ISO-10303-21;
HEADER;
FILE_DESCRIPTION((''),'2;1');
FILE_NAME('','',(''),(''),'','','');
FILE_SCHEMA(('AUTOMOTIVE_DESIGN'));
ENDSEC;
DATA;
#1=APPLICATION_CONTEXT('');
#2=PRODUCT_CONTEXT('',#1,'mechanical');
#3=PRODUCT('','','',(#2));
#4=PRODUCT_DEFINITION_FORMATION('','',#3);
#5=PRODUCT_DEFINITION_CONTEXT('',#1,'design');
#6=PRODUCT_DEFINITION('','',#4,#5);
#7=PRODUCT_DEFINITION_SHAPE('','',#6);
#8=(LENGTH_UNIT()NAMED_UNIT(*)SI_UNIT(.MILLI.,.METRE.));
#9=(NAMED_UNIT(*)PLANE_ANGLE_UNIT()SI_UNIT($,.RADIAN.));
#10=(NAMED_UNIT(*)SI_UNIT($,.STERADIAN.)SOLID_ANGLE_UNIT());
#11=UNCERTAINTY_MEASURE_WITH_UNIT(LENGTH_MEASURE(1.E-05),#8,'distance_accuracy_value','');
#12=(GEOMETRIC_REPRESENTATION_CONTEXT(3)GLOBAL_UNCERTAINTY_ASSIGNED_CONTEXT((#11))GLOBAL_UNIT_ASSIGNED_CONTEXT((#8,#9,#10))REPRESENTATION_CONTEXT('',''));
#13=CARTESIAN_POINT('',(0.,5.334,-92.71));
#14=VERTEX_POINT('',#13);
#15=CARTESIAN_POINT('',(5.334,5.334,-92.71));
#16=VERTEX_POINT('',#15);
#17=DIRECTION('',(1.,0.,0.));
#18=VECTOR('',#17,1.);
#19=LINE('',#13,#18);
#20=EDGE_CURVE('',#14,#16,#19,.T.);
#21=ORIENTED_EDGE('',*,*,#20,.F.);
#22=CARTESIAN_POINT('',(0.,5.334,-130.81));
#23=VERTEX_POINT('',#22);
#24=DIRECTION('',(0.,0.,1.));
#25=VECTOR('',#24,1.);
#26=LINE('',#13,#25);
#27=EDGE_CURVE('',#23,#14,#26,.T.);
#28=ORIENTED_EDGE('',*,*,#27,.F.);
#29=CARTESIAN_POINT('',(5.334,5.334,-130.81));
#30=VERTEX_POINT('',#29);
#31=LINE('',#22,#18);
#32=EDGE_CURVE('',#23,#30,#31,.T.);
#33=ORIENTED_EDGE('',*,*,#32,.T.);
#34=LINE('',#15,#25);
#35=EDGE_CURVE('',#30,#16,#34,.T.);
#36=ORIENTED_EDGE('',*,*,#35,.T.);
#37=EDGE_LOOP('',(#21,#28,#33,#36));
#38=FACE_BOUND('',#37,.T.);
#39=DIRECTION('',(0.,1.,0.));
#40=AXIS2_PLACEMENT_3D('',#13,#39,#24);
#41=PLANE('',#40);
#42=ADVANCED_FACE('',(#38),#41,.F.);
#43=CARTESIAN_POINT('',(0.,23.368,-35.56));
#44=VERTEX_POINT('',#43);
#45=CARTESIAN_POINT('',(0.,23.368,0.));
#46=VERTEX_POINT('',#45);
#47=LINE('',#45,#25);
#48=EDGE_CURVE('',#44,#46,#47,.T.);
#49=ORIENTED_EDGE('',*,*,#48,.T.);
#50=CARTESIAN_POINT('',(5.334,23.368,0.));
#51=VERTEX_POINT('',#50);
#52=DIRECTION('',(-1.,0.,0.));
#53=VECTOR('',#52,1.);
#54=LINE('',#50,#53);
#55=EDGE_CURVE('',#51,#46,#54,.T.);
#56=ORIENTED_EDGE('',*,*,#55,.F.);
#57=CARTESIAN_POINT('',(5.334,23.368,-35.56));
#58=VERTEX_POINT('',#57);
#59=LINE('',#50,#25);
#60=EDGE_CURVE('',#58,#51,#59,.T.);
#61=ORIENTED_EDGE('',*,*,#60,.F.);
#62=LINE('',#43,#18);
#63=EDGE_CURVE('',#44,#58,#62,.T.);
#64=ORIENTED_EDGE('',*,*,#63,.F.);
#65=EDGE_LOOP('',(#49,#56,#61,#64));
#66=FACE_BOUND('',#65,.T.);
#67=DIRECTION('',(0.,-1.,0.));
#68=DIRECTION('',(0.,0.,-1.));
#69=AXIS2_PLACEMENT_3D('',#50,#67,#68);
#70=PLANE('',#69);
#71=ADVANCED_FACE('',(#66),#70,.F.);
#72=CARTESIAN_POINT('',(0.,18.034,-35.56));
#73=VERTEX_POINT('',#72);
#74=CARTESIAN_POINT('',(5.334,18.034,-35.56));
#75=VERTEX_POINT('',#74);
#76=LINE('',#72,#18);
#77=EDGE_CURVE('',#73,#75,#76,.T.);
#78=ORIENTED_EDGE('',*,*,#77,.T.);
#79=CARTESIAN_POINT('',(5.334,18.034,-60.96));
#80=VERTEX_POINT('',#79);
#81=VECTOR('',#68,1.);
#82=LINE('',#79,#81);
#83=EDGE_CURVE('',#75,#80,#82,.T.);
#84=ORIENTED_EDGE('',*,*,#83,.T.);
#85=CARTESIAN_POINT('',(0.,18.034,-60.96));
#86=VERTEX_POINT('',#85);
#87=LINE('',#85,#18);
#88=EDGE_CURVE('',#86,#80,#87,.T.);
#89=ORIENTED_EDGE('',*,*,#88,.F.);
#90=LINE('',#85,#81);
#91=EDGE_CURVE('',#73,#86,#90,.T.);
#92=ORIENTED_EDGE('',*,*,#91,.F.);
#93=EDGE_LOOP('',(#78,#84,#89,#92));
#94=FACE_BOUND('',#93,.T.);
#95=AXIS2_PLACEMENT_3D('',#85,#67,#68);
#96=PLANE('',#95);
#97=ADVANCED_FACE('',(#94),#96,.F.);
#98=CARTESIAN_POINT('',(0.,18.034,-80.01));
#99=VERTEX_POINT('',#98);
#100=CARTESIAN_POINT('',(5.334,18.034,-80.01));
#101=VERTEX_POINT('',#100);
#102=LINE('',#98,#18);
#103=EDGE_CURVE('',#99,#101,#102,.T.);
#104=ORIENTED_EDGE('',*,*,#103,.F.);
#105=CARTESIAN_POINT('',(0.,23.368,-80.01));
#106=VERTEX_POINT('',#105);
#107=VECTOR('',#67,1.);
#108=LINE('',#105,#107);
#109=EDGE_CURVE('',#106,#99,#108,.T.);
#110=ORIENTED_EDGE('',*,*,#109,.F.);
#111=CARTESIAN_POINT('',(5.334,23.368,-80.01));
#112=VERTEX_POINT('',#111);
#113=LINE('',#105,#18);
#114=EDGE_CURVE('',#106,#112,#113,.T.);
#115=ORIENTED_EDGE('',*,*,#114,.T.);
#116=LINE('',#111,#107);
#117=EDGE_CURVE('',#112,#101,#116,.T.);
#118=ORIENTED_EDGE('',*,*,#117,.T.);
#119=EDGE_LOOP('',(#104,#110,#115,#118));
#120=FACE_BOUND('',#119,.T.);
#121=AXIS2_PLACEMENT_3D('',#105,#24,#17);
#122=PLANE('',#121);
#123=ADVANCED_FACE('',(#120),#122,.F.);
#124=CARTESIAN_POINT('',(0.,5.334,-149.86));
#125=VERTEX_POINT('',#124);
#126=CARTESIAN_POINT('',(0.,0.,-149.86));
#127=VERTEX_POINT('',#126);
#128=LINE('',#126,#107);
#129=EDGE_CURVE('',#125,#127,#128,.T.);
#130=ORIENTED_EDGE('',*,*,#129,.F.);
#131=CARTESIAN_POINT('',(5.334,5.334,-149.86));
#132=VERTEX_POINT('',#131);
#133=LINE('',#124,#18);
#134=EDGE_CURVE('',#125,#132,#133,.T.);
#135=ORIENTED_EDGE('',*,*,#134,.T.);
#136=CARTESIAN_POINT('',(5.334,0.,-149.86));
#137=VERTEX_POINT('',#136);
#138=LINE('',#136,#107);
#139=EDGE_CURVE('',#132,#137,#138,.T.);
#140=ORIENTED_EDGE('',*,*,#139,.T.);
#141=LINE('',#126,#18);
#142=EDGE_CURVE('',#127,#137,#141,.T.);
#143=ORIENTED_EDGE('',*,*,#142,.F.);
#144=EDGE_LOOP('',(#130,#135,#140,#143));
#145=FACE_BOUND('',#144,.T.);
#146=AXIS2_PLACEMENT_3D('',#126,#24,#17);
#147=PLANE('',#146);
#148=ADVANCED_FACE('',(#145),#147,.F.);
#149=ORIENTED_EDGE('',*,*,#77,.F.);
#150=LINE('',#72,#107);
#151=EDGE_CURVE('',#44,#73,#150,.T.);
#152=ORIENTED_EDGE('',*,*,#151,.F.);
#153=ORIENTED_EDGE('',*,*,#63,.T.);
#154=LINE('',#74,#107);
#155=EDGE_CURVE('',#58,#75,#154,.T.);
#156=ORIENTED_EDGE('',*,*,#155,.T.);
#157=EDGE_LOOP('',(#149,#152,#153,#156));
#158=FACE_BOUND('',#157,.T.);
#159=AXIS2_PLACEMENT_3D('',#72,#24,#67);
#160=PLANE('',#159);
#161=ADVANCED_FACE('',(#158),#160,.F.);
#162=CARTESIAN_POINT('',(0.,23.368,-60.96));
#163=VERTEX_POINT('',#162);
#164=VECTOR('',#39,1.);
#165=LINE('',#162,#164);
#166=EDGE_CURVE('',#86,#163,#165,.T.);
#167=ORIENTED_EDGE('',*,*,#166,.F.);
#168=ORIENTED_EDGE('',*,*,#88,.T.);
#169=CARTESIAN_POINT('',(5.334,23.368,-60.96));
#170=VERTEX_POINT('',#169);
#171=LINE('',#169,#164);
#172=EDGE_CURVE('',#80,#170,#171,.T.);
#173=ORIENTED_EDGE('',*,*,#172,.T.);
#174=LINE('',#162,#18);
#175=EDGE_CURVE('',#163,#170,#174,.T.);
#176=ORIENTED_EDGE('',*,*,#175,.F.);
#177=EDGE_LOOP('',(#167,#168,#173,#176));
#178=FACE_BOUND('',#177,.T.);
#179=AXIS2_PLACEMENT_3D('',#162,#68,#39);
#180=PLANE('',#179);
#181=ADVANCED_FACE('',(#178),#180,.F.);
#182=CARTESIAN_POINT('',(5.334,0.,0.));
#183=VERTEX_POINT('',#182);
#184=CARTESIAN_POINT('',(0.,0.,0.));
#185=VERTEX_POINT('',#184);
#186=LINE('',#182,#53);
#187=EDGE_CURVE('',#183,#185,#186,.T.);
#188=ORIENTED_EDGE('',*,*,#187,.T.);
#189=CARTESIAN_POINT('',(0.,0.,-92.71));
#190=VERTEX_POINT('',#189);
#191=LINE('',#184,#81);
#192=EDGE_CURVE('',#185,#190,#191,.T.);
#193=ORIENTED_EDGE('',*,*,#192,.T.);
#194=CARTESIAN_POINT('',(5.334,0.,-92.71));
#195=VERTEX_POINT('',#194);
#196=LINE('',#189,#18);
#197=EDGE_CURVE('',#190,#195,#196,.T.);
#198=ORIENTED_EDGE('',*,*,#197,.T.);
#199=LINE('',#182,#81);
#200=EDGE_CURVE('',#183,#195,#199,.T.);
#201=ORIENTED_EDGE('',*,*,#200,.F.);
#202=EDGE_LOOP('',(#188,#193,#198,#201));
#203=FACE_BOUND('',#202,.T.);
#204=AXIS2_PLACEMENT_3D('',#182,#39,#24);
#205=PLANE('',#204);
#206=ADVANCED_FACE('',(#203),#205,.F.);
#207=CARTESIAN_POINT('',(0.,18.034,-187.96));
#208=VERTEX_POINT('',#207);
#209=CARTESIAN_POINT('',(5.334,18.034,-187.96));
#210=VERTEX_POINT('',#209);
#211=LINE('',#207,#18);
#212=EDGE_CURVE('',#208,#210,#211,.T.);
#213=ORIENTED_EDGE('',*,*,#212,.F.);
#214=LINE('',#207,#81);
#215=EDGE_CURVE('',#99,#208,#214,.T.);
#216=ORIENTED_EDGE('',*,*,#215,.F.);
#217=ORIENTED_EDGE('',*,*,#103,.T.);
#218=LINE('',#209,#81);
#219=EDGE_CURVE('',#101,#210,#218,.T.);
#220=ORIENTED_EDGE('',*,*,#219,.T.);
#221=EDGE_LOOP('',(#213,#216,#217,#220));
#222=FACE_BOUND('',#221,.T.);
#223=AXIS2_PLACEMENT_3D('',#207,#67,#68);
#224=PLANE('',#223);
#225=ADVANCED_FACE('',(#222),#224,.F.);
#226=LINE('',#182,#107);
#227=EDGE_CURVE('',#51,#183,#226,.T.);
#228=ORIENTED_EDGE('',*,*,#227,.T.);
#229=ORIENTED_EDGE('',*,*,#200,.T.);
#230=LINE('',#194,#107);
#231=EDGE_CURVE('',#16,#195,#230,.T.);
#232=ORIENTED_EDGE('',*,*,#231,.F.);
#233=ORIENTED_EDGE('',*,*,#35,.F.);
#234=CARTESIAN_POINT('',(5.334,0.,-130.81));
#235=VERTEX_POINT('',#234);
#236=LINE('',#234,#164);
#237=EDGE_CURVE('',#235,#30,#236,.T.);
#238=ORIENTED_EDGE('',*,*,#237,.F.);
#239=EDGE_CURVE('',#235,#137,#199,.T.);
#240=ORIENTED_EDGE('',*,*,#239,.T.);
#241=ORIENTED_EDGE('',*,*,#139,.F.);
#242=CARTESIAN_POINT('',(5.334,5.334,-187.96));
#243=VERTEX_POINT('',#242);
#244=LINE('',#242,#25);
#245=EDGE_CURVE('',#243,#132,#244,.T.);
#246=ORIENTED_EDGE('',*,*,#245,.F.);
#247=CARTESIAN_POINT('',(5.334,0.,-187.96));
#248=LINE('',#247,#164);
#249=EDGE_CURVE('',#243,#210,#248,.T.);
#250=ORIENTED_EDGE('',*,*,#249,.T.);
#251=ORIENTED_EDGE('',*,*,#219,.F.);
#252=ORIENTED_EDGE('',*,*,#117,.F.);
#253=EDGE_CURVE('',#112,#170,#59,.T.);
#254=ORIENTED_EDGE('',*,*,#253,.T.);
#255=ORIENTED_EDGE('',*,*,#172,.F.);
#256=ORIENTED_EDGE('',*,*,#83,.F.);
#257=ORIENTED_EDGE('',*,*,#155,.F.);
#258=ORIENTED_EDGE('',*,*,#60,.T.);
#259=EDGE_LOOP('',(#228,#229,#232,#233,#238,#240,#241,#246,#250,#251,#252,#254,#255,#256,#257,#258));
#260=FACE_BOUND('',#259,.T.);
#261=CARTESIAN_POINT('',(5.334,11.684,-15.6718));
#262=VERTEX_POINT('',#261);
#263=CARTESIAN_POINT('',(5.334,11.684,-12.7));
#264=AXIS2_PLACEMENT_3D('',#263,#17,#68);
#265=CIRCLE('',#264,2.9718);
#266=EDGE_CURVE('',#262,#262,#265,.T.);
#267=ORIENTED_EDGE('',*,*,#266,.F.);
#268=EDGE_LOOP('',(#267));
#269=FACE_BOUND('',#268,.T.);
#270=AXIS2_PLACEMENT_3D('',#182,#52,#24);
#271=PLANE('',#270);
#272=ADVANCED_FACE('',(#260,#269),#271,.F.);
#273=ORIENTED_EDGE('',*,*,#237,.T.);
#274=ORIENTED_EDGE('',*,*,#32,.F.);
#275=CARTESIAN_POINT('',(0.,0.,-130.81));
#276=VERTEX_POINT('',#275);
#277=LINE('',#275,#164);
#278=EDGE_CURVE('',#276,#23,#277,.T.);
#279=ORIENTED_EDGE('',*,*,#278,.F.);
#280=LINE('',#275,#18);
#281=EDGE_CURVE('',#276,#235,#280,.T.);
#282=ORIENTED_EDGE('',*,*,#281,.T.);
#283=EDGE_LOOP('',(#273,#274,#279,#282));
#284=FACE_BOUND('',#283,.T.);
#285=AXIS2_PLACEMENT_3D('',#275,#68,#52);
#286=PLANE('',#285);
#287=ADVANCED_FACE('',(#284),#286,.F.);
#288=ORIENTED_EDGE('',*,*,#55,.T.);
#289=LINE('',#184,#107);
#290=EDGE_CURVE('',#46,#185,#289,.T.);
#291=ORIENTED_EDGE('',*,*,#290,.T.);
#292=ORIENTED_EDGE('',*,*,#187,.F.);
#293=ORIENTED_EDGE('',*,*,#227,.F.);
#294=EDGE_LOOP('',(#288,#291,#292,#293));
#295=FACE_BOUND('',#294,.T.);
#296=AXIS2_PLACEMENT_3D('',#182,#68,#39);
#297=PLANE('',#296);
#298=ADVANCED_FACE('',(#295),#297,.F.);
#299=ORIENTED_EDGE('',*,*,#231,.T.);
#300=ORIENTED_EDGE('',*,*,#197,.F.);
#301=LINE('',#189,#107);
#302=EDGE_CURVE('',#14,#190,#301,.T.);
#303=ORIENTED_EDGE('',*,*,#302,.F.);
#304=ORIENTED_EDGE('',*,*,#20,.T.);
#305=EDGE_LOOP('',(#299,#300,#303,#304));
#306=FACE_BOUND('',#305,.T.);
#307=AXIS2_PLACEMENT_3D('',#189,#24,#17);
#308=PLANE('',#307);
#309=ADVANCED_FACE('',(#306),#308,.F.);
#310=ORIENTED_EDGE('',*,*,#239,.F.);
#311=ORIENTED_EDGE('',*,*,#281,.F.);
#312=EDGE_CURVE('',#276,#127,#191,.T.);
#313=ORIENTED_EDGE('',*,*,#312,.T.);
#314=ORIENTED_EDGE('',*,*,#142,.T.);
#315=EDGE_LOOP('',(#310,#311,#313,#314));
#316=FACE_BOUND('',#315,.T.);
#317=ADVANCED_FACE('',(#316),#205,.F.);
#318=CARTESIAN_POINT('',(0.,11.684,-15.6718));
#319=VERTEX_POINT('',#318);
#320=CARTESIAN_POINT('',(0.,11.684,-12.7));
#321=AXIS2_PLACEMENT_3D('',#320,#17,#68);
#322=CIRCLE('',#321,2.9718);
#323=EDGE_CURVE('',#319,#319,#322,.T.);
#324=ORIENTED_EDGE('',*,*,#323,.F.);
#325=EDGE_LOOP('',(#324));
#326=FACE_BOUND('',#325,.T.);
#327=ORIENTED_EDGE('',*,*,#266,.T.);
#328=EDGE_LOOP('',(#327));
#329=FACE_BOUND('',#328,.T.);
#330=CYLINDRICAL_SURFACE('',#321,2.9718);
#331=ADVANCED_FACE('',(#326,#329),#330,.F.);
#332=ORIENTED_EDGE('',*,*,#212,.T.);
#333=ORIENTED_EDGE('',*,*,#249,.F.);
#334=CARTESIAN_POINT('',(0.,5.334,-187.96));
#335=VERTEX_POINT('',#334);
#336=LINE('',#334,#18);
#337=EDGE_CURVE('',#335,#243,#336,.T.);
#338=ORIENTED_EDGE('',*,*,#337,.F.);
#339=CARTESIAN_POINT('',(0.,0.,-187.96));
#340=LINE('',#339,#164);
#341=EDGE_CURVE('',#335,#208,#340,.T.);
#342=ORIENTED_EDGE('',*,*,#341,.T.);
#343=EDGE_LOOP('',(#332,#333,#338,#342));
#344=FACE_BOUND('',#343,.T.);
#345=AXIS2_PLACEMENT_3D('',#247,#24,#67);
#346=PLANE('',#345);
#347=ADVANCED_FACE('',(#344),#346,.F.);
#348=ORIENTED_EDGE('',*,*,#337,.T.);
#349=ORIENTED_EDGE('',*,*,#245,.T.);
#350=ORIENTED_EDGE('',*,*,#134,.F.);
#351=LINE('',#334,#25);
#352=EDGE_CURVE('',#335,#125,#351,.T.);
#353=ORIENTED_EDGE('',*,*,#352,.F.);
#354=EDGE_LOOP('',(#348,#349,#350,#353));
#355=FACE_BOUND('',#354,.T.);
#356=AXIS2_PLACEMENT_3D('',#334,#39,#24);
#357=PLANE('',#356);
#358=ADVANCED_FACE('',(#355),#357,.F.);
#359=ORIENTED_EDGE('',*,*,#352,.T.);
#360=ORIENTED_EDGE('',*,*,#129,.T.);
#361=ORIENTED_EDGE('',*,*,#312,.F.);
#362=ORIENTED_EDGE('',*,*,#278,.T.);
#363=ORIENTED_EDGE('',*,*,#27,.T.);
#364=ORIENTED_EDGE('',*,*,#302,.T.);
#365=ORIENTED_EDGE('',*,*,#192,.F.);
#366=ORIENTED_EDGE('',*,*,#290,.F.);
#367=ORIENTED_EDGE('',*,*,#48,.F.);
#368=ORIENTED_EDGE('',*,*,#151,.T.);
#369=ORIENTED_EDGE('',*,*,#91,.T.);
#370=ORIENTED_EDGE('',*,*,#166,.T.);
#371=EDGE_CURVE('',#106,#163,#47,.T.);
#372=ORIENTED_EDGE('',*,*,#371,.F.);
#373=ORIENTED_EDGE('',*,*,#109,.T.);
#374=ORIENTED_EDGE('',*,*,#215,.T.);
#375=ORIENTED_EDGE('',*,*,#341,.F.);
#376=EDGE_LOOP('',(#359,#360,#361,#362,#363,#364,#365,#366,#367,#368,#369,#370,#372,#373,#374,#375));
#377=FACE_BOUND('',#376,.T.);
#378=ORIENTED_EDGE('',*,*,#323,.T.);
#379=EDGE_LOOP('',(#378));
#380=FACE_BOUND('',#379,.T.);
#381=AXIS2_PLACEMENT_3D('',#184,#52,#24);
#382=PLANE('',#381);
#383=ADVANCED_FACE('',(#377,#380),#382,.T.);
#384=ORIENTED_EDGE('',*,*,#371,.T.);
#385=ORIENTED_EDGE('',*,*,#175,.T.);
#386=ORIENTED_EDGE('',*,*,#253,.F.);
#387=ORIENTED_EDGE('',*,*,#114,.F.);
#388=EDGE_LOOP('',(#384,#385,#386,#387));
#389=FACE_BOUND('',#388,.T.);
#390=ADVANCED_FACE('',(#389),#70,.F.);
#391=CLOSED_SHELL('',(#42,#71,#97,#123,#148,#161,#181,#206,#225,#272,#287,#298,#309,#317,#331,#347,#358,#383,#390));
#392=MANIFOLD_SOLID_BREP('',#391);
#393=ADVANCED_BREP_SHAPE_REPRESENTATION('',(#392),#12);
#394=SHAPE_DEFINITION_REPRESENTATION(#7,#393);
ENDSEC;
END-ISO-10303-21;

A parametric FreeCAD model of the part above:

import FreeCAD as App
import Part
import Sketcher
from FreeCAD import Vector
Q = App.Units.Quantity

doc = App.newDocument("Part")
params = doc.addObject("Spreadsheet::Sheet", "Params")
for row, (alias, value) in enumerate([
    ("sketch1_height", "7.4 in"),
    ("sketch1_width", "0.92 in"),
    ("pad1_length", "0.21 in"),
    ("sketch2_height", "1 in"),
    ("sketch2_height2", "1.5 in"),
    ("sketch2_width", "0.21 in"),
    ("sketch2_height3", "4.25 in"),
    ("sketch3_diameter", "0.234 in"),
], start=1):
    params.set(f"A{row}", alias)
    params.set(f"B{row}", "=" + value)
    params.setAlias(f"B{row}", alias)

body = doc.addObject("PartDesign::Body", "Body")

# Sketch on YZ plane
sketch1 = body.newObject("Sketcher::SketchObject", "Sketch")
sketch1.AttachmentSupport = (doc.getObject("YZ_Plane"), [""])
sketch1.MapMode = "FlatFace"
sketch1.addGeometry(Part.LineSegment(Vector(23, 0, 0), Vector(0, 0, 0)), False)
sketch1.addGeometry(Part.LineSegment(Vector(0, 0, 0), Vector(0, -188, 0)), False)
sketch1.addGeometry(Part.LineSegment(Vector(0, -188, 0), Vector(23, -188, 0)), False)
sketch1.addGeometry(Part.LineSegment(Vector(23, -188, 0), Vector(23, 0, 0)), False)
sketch1.addConstraint(Sketcher.Constraint("Coincident", 0, 2, 1, 1))
sketch1.addConstraint(Sketcher.Constraint("Coincident", 1, 2, 2, 1))
sketch1.addConstraint(Sketcher.Constraint("Coincident", 2, 2, 3, 1))
sketch1.addConstraint(Sketcher.Constraint("Coincident", 3, 2, 0, 1))
sketch1.addConstraint(Sketcher.Constraint("Horizontal", 0))
sketch1.addConstraint(Sketcher.Constraint("Vertical", 1))
sketch1.addConstraint(Sketcher.Constraint("Horizontal", 2))
sketch1.addConstraint(Sketcher.Constraint("Vertical", 3))
sketch1.addConstraint(Sketcher.Constraint("Coincident", 0, 2, -1, 1))
sketch1.addConstraint(Sketcher.Constraint("DistanceY", 1, 2, 1, 1, Q("7.4 in")))
sketch1.addConstraint(Sketcher.Constraint("DistanceX", 0, 2, 0, 1, Q("0.92 in")))
sketch1.setExpression("Constraints[9]", "Params.sketch1_height")
sketch1.setExpression("Constraints[10]", "Params.sketch1_width")
pad1 = body.newObject("PartDesign::Pad", "Pad")
pad1.Profile = sketch1
pad1.setExpression("Length", "Params.pad1_length")

# Sketch on YZ plane
sketch2 = body.newObject("Sketcher::SketchObject", "Sketch001")
sketch2.AttachmentSupport = (doc.getObject("YZ_Plane"), [""])
sketch2.MapMode = "FlatFace"
sketch2.AttachmentOffset = App.Placement(Vector(0, 0, 0.21 * 25.4), App.Rotation())
sketch2.addGeometry(Part.LineSegment(Vector(23, -36, 0), Vector(18, -36, 0)), False)
sketch2.addGeometry(Part.LineSegment(Vector(18, -36, 0), Vector(18, -61, 0)), False)
sketch2.addGeometry(Part.LineSegment(Vector(18, -61, 0), Vector(23, -61, 0)), False)
sketch2.addGeometry(Part.LineSegment(Vector(23, -61, 0), Vector(23, -36, 0)), False)
sketch2.addGeometry(Part.LineSegment(Vector(5, -93, 0), Vector(0, -93, 0)), False)
sketch2.addGeometry(Part.LineSegment(Vector(0, -93, 0), Vector(0, -131, 0)), False)
sketch2.addGeometry(Part.LineSegment(Vector(0, -131, 0), Vector(5, -131, 0)), False)
sketch2.addGeometry(Part.LineSegment(Vector(5, -131, 0), Vector(5, -93, 0)), False)
sketch2.addGeometry(Part.LineSegment(Vector(5, -150, 0), Vector(0, -150, 0)), False)
sketch2.addGeometry(Part.LineSegment(Vector(0, -150, 0), Vector(0, -188, 0)), False)
sketch2.addGeometry(Part.LineSegment(Vector(0, -188, 0), Vector(5, -188, 0)), False)
sketch2.addGeometry(Part.LineSegment(Vector(5, -188, 0), Vector(5, -150, 0)), False)
sketch2.addGeometry(Part.LineSegment(Vector(23, -80, 0), Vector(18, -80, 0)), False)
sketch2.addGeometry(Part.LineSegment(Vector(18, -80, 0), Vector(18, -188, 0)), False)
sketch2.addGeometry(Part.LineSegment(Vector(18, -188, 0), Vector(23, -188, 0)), False)
sketch2.addGeometry(Part.LineSegment(Vector(23, -188, 0), Vector(23, -80, 0)), False)
sketch2.addConstraint(Sketcher.Constraint("Coincident", 0, 2, 1, 1))
sketch2.addConstraint(Sketcher.Constraint("Coincident", 1, 2, 2, 1))
sketch2.addConstraint(Sketcher.Constraint("Coincident", 2, 2, 3, 1))
sketch2.addConstraint(Sketcher.Constraint("Coincident", 3, 2, 0, 1))
sketch2.addConstraint(Sketcher.Constraint("Coincident", 4, 2, 5, 1))
sketch2.addConstraint(Sketcher.Constraint("Coincident", 5, 2, 6, 1))
sketch2.addConstraint(Sketcher.Constraint("Coincident", 6, 2, 7, 1))
sketch2.addConstraint(Sketcher.Constraint("Coincident", 7, 2, 4, 1))
sketch2.addConstraint(Sketcher.Constraint("Coincident", 8, 2, 9, 1))
sketch2.addConstraint(Sketcher.Constraint("Coincident", 9, 2, 10, 1))
sketch2.addConstraint(Sketcher.Constraint("Coincident", 10, 2, 11, 1))
sketch2.addConstraint(Sketcher.Constraint("Coincident", 11, 2, 8, 1))
sketch2.addConstraint(Sketcher.Constraint("Coincident", 12, 2, 13, 1))
sketch2.addConstraint(Sketcher.Constraint("Coincident", 13, 2, 14, 1))
sketch2.addConstraint(Sketcher.Constraint("Coincident", 14, 2, 15, 1))
sketch2.addConstraint(Sketcher.Constraint("Coincident", 15, 2, 12, 1))
sketch2.addConstraint(Sketcher.Constraint("Horizontal", 0))
sketch2.addConstraint(Sketcher.Constraint("Vertical", 1))
sketch2.addConstraint(Sketcher.Constraint("Horizontal", 2))
sketch2.addConstraint(Sketcher.Constraint("Vertical", 3))
sketch2.addConstraint(Sketcher.Constraint("Horizontal", 4))
sketch2.addConstraint(Sketcher.Constraint("Vertical", 5))
sketch2.addConstraint(Sketcher.Constraint("Horizontal", 6))
sketch2.addConstraint(Sketcher.Constraint("Vertical", 7))
sketch2.addConstraint(Sketcher.Constraint("Horizontal", 8))
sketch2.addConstraint(Sketcher.Constraint("Vertical", 9))
sketch2.addConstraint(Sketcher.Constraint("Horizontal", 10))
sketch2.addConstraint(Sketcher.Constraint("Vertical", 11))
sketch2.addConstraint(Sketcher.Constraint("Horizontal", 12))
sketch2.addConstraint(Sketcher.Constraint("Vertical", 13))
sketch2.addConstraint(Sketcher.Constraint("Horizontal", 14))
sketch2.addConstraint(Sketcher.Constraint("Vertical", 15))
sketch2.addConstraint(Sketcher.Constraint("PointOnObject", 4, 2, -2))
sketch2.addConstraint(Sketcher.Constraint("PointOnObject", 8, 2, -2))
sketch2.addConstraint(Sketcher.Constraint("Horizontal", 10, 2, 13, 2))
sketch2.addConstraint(Sketcher.Constraint("Vertical", 7, 2, 10, 2))
sketch2.addConstraint(Sketcher.Constraint("Vertical", 1, 2, 12, 2))
sketch2.addConstraint(Sketcher.Constraint("Vertical", 3, 2, 14, 2))
sketch2.addConstraint(Sketcher.Constraint("Equal", 2, 4))
sketch2.addConstraint(Sketcher.Constraint("Equal", 7, 9))
sketch2.addConstraint(Sketcher.Constraint("DistanceY", 1, 2, 1, 1, Q("1 in")))
sketch2.addConstraint(Sketcher.Constraint("DistanceY", 5, 2, 5, 1, Q("1.5 in")))
sketch2.addConstraint(Sketcher.Constraint("DistanceX", 0, 2, 0, 1, Q("0.21 in")))
sketch2.addConstraint(Sketcher.Constraint("DistanceY", 13, 2, 13, 1, Q("4.25 in")))
sketch2.addConstraint(Sketcher.Constraint("DistanceY", 0, 2, -1, 1, Q("1.4 in")))
sketch2.addConstraint(Sketcher.Constraint("DistanceY", 8, 2, -1, 1, Q("5.9 in")))
sketch2.addConstraint(Sketcher.Constraint("DistanceX", 6, 2, 1, 2, Q("0.5 in")))
sketch2.addConstraint(Sketcher.Constraint("DistanceY", 7, 2, 12, 2, Q("0.5 in")))
sketch2.setExpression("Constraints[40]", "Params.sketch2_height")
sketch2.setExpression("Constraints[41]", "Params.sketch2_height2")
sketch2.setExpression("Constraints[42]", "Params.sketch2_width")
sketch2.setExpression("Constraints[43]", "Params.sketch2_height3")
pocket1 = body.newObject("PartDesign::Pocket", "Pocket")
pocket1.Profile = sketch2
pocket1.Type = "ThroughAll"

# Sketch on YZ plane
sketch3 = body.newObject("Sketcher::SketchObject", "Sketch002")
sketch3.AttachmentSupport = (doc.getObject("YZ_Plane"), [""])
sketch3.MapMode = "FlatFace"
sketch3.AttachmentOffset = App.Placement(Vector(0, 0, 0.21 * 25.4), App.Rotation())
sketch3.addGeometry(Part.Circle(Vector(11.7, -12.7, 0), Vector(0, 0, 1), 3), False)
sketch3.addConstraint(Sketcher.Constraint("Diameter", 0, Q("0.234 in")))
sketch3.addConstraint(Sketcher.Constraint("DistanceY", 0, 3, -1, 1, Q("0.5 in")))
sketch3.addConstraint(Sketcher.Constraint("DistanceX", -1, 1, 0, 3, Q("0.46 in")))
sketch3.setExpression("Constraints[0]", "Params.sketch3_diameter")
pocket2 = body.newObject("PartDesign::Pocket", "Pocket001")
pocket2.Profile = sketch3
pocket2.Type = "ThroughAll"

doc.recompute()
